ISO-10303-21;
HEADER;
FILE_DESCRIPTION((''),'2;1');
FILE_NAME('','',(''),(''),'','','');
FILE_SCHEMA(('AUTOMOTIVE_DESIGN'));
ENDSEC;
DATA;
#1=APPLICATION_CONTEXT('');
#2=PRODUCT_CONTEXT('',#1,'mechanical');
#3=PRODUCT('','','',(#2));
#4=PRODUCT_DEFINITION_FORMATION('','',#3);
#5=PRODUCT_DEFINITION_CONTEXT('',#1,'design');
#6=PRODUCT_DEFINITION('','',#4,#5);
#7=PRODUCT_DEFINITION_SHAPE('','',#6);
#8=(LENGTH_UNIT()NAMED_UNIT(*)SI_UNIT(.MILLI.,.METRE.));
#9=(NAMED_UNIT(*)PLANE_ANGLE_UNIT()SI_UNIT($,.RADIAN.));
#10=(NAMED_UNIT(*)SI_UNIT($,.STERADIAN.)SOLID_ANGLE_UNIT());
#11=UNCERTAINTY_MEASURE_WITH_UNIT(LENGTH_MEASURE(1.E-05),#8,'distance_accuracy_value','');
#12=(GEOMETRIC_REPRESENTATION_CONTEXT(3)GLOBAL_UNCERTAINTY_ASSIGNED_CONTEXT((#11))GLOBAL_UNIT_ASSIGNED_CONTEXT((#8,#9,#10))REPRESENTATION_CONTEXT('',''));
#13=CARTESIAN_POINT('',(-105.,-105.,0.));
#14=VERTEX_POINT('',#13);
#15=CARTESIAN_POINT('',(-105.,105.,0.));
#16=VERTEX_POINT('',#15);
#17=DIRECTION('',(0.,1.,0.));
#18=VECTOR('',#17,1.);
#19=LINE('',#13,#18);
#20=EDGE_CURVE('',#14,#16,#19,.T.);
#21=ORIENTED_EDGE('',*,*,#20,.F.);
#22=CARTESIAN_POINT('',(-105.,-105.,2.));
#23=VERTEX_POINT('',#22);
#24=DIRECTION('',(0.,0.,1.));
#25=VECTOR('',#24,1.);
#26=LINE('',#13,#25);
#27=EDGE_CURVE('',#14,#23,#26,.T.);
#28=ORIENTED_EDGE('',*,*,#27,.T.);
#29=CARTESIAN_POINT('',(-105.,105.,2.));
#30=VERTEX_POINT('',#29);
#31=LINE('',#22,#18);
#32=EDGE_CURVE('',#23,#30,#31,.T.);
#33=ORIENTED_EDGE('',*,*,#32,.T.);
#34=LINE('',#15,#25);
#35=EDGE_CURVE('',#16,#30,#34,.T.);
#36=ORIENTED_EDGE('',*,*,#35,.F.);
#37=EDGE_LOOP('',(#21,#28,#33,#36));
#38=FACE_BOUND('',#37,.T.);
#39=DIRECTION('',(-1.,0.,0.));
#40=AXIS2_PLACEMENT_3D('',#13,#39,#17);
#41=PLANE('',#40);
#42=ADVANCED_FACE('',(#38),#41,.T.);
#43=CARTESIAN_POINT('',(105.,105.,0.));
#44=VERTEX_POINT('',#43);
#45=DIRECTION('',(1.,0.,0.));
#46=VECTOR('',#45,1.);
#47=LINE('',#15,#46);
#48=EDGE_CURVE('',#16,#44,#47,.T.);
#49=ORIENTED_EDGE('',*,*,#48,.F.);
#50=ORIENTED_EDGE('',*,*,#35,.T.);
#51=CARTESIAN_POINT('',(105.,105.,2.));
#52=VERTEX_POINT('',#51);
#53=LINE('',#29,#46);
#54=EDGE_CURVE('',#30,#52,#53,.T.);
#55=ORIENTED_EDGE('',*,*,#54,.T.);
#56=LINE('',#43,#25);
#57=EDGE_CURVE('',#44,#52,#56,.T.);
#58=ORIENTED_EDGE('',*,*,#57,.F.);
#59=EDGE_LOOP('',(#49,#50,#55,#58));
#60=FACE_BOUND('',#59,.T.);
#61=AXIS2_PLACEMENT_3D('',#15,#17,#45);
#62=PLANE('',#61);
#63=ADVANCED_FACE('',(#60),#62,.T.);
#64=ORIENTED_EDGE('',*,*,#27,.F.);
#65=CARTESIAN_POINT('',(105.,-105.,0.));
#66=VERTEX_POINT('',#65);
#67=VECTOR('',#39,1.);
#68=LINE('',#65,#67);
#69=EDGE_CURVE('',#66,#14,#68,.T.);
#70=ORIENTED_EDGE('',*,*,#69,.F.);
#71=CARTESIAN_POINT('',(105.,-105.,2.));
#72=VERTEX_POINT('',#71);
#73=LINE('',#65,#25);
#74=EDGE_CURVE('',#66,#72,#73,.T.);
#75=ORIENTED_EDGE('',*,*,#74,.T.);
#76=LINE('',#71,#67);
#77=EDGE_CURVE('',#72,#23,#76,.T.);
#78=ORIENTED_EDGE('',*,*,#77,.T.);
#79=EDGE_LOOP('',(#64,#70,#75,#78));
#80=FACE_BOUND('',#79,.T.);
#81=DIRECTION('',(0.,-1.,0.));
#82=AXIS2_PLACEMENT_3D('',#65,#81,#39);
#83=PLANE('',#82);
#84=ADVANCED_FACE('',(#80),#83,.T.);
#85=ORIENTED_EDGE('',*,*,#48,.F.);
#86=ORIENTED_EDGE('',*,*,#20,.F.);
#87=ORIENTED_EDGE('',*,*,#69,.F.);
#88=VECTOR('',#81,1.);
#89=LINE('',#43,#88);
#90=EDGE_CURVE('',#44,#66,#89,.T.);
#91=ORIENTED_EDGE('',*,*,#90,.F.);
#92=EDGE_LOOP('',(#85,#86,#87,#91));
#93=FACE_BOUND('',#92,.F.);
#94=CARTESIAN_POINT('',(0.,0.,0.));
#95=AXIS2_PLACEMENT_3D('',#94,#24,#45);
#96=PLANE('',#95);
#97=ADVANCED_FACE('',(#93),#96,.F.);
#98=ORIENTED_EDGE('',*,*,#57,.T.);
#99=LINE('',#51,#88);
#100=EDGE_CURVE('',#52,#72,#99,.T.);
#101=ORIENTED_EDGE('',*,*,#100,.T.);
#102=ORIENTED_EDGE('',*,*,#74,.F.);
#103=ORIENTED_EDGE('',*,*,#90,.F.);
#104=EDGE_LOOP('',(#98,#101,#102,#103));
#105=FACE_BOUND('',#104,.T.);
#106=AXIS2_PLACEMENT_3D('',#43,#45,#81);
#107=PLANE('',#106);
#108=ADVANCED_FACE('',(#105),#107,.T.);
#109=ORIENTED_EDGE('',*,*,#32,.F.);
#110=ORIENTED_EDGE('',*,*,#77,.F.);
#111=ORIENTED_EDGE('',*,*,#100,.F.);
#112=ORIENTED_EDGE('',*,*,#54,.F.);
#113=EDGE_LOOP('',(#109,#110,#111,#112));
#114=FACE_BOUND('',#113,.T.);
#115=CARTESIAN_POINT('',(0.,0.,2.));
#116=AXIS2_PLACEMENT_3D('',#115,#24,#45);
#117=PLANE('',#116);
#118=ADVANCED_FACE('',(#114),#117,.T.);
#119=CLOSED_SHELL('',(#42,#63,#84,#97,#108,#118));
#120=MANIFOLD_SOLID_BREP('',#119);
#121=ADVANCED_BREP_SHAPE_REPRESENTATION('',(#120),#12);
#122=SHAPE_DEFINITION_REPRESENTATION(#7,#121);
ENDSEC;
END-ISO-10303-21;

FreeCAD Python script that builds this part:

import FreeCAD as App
import Part
import Sketcher
from FreeCAD import Vector


def add_polygon(sketch, points):
    """Adds a closed chain of lines whose ends are joined by coincident constraints."""
    first, n = sketch.GeometryCount, len(points)
    for a, b in zip(points, points[1:] + points[:1]):
        sketch.addGeometry(Part.LineSegment(App.Vector(*a, 0), App.Vector(*b, 0)), False)
    for i in range(n):
        sketch.addConstraint(Sketcher.Constraint("Coincident", first + i, 2, first + (i + 1) % n, 1))

doc = App.newDocument("Part")
body = doc.addObject("PartDesign::Body", "Body")

# Sketch on XY plane
sketch1 = body.newObject("Sketcher::SketchObject", "Sketch")
sketch1.AttachmentSupport = (doc.getObject("XY_Plane"), [""])
sketch1.MapMode = "FlatFace"
add_polygon(sketch1, [(105, 105), (-105, 105), (-105, -105), (105, -105)])  # lines 0-3
sketch1.addConstraint([
    Sketcher.Constraint("Horizontal", 0),
    Sketcher.Constraint("Vertical", 1),
    Sketcher.Constraint("Horizontal", 2),
    Sketcher.Constraint("Vertical", 3),
    Sketcher.Constraint("Symmetric", 0, 2, 2, 2, -1, 1),
    Sketcher.Constraint("Equal", 2, 1),
    Sketcher.Constraint("DistanceX", 0, 2, 0, 1, 210.0),
])
pad1 = body.newObject("PartDesign::Pad", "Pad")
pad1.Profile = sketch1
pad1.Length = 2

doc.recompute()
